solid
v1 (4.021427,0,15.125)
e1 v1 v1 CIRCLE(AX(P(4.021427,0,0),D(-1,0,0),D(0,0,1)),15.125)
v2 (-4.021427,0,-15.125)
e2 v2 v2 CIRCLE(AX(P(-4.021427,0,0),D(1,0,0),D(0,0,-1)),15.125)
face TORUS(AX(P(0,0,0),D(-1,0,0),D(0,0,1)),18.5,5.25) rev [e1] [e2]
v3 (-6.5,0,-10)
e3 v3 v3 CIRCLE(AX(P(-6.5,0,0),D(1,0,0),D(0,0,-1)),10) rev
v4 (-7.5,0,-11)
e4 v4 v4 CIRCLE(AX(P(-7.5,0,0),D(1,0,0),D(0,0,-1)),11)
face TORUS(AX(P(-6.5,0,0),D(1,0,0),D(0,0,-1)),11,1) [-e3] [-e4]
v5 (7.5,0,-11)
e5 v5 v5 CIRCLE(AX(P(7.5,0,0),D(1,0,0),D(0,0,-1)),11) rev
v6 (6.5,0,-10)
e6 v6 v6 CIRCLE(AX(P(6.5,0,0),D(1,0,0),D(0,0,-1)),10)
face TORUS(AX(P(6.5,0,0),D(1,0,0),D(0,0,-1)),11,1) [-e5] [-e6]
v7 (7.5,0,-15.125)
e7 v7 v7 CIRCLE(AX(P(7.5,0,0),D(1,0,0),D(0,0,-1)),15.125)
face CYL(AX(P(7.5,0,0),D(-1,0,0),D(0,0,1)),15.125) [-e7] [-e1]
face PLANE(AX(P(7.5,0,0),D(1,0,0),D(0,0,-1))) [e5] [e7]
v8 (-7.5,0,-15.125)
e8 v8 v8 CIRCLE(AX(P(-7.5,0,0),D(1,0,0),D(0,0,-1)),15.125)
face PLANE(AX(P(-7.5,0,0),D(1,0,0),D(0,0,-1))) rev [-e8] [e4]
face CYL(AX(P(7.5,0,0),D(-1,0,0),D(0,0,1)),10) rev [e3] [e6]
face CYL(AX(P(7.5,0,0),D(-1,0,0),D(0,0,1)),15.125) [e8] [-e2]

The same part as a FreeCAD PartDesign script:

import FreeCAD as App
import Part
import Sketcher
from FreeCAD import Vector
Q = App.Units.Quantity


def edges_at(feature, points):
    """Names of the edges that pass closest to the given points."""
    edges = feature.Shape.Edges
    near = lambda p: min(range(len(edges)), key=lambda i: edges[i].distToShape(Part.Vertex(*p))[0])
    return sorted({f"Edge{near(p) + 1}" for p in points})

doc = App.newDocument("Part")
params = doc.addObject("Spreadsheet::Sheet", "Params")
for row, (alias, value) in enumerate([
    ("sketch1_diameter", "20 mm"),
    ("sketch1_diameter2", "30.25 mm"),
    ("pad1_length", "15 mm"),
    ("sketch2_diameter", "10.5 mm"),
    ("groove_angle", "360 deg"),
    ("fillet_radius", "1 mm"),
], start=1):
    params.set(f"A{row}", alias)
    params.set(f"B{row}", "=" + value)
    params.setAlias(f"B{row}", alias)

body = doc.addObject("PartDesign::Body", "Body")

# Sketch on YZ plane
sketch1 = doc.addObject("Sketcher::SketchObject", "Sketch")
body.addObject(sketch1)
sketch1.AttachmentSupport = (doc.YZ_Plane, [""])
sketch1.MapMode = "FlatFace"
sketch1.addGeometry([
    Part.Circle(Vector(0, 0, 0), Vector(0, 0, 1), 15),
    Part.Circle(Vector(0, 0, 0), Vector(0, 0, 1), 10),
], False)
sketch1.addConstraint([
    Sketcher.Constraint("Coincident", 0, 3, -1, 1),
    Sketcher.Constraint("Coincident", 1, 3, -1, 1),
    Sketcher.Constraint("Diameter", 1, Q("20 mm")),
    Sketcher.Constraint("Diameter", 0, Q("30.25 mm")),
])
sketch1.setExpression("Constraints[2]", "Params.sketch1_diameter")
sketch1.setExpression("Constraints[3]", "Params.sketch1_diameter2")
pad1 = doc.addObject("PartDesign::Pad", "Pad")
body.addObject(pad1)
pad1.Profile = sketch1
pad1.setExpression("Length", "Params.pad1_length")
pad1.Midplane = True

# Sketch on XY plane
sketch2 = doc.addObject("Sketcher::SketchObject", "Sketch001")
body.addObject(sketch2)
sketch2.AttachmentSupport = (doc.XY_Plane, [""])
sketch2.MapMode = "FlatFace"
sketch2.addGeometry(Part.Circle(Vector(0, 18, 0), Vector(0, 0, 1), 5), False)
sketch2.addConstraint([
    Sketcher.Constraint("PointOnObject", 0, 3, -2),
    Sketcher.Constraint("Diameter", 0, Q("10.5 mm")),
    Sketcher.Constraint("DistanceY", -1, 1, 0, 3, Q("18.5 mm")),
])
sketch2.setExpression("Constraints[1]", "Params.sketch2_diameter")
groove = doc.addObject("PartDesign::Groove", "Groove")
body.addObject(groove)
groove.Profile = sketch2
groove.ReferenceAxis = (sketch2, ["H_Axis"])
groove.setExpression("Angle", "Params.groove_angle")
doc.recompute()

fillet = doc.addObject("PartDesign::Fillet", "Fillet")
body.addObject(fillet)
fillet.Base = (groove, edges_at(groove, [(-7.5, 0, 10), (7.5, 0, 10)]))
fillet.setExpression("Radius", "Params.fillet_radius")

doc.recompute()
